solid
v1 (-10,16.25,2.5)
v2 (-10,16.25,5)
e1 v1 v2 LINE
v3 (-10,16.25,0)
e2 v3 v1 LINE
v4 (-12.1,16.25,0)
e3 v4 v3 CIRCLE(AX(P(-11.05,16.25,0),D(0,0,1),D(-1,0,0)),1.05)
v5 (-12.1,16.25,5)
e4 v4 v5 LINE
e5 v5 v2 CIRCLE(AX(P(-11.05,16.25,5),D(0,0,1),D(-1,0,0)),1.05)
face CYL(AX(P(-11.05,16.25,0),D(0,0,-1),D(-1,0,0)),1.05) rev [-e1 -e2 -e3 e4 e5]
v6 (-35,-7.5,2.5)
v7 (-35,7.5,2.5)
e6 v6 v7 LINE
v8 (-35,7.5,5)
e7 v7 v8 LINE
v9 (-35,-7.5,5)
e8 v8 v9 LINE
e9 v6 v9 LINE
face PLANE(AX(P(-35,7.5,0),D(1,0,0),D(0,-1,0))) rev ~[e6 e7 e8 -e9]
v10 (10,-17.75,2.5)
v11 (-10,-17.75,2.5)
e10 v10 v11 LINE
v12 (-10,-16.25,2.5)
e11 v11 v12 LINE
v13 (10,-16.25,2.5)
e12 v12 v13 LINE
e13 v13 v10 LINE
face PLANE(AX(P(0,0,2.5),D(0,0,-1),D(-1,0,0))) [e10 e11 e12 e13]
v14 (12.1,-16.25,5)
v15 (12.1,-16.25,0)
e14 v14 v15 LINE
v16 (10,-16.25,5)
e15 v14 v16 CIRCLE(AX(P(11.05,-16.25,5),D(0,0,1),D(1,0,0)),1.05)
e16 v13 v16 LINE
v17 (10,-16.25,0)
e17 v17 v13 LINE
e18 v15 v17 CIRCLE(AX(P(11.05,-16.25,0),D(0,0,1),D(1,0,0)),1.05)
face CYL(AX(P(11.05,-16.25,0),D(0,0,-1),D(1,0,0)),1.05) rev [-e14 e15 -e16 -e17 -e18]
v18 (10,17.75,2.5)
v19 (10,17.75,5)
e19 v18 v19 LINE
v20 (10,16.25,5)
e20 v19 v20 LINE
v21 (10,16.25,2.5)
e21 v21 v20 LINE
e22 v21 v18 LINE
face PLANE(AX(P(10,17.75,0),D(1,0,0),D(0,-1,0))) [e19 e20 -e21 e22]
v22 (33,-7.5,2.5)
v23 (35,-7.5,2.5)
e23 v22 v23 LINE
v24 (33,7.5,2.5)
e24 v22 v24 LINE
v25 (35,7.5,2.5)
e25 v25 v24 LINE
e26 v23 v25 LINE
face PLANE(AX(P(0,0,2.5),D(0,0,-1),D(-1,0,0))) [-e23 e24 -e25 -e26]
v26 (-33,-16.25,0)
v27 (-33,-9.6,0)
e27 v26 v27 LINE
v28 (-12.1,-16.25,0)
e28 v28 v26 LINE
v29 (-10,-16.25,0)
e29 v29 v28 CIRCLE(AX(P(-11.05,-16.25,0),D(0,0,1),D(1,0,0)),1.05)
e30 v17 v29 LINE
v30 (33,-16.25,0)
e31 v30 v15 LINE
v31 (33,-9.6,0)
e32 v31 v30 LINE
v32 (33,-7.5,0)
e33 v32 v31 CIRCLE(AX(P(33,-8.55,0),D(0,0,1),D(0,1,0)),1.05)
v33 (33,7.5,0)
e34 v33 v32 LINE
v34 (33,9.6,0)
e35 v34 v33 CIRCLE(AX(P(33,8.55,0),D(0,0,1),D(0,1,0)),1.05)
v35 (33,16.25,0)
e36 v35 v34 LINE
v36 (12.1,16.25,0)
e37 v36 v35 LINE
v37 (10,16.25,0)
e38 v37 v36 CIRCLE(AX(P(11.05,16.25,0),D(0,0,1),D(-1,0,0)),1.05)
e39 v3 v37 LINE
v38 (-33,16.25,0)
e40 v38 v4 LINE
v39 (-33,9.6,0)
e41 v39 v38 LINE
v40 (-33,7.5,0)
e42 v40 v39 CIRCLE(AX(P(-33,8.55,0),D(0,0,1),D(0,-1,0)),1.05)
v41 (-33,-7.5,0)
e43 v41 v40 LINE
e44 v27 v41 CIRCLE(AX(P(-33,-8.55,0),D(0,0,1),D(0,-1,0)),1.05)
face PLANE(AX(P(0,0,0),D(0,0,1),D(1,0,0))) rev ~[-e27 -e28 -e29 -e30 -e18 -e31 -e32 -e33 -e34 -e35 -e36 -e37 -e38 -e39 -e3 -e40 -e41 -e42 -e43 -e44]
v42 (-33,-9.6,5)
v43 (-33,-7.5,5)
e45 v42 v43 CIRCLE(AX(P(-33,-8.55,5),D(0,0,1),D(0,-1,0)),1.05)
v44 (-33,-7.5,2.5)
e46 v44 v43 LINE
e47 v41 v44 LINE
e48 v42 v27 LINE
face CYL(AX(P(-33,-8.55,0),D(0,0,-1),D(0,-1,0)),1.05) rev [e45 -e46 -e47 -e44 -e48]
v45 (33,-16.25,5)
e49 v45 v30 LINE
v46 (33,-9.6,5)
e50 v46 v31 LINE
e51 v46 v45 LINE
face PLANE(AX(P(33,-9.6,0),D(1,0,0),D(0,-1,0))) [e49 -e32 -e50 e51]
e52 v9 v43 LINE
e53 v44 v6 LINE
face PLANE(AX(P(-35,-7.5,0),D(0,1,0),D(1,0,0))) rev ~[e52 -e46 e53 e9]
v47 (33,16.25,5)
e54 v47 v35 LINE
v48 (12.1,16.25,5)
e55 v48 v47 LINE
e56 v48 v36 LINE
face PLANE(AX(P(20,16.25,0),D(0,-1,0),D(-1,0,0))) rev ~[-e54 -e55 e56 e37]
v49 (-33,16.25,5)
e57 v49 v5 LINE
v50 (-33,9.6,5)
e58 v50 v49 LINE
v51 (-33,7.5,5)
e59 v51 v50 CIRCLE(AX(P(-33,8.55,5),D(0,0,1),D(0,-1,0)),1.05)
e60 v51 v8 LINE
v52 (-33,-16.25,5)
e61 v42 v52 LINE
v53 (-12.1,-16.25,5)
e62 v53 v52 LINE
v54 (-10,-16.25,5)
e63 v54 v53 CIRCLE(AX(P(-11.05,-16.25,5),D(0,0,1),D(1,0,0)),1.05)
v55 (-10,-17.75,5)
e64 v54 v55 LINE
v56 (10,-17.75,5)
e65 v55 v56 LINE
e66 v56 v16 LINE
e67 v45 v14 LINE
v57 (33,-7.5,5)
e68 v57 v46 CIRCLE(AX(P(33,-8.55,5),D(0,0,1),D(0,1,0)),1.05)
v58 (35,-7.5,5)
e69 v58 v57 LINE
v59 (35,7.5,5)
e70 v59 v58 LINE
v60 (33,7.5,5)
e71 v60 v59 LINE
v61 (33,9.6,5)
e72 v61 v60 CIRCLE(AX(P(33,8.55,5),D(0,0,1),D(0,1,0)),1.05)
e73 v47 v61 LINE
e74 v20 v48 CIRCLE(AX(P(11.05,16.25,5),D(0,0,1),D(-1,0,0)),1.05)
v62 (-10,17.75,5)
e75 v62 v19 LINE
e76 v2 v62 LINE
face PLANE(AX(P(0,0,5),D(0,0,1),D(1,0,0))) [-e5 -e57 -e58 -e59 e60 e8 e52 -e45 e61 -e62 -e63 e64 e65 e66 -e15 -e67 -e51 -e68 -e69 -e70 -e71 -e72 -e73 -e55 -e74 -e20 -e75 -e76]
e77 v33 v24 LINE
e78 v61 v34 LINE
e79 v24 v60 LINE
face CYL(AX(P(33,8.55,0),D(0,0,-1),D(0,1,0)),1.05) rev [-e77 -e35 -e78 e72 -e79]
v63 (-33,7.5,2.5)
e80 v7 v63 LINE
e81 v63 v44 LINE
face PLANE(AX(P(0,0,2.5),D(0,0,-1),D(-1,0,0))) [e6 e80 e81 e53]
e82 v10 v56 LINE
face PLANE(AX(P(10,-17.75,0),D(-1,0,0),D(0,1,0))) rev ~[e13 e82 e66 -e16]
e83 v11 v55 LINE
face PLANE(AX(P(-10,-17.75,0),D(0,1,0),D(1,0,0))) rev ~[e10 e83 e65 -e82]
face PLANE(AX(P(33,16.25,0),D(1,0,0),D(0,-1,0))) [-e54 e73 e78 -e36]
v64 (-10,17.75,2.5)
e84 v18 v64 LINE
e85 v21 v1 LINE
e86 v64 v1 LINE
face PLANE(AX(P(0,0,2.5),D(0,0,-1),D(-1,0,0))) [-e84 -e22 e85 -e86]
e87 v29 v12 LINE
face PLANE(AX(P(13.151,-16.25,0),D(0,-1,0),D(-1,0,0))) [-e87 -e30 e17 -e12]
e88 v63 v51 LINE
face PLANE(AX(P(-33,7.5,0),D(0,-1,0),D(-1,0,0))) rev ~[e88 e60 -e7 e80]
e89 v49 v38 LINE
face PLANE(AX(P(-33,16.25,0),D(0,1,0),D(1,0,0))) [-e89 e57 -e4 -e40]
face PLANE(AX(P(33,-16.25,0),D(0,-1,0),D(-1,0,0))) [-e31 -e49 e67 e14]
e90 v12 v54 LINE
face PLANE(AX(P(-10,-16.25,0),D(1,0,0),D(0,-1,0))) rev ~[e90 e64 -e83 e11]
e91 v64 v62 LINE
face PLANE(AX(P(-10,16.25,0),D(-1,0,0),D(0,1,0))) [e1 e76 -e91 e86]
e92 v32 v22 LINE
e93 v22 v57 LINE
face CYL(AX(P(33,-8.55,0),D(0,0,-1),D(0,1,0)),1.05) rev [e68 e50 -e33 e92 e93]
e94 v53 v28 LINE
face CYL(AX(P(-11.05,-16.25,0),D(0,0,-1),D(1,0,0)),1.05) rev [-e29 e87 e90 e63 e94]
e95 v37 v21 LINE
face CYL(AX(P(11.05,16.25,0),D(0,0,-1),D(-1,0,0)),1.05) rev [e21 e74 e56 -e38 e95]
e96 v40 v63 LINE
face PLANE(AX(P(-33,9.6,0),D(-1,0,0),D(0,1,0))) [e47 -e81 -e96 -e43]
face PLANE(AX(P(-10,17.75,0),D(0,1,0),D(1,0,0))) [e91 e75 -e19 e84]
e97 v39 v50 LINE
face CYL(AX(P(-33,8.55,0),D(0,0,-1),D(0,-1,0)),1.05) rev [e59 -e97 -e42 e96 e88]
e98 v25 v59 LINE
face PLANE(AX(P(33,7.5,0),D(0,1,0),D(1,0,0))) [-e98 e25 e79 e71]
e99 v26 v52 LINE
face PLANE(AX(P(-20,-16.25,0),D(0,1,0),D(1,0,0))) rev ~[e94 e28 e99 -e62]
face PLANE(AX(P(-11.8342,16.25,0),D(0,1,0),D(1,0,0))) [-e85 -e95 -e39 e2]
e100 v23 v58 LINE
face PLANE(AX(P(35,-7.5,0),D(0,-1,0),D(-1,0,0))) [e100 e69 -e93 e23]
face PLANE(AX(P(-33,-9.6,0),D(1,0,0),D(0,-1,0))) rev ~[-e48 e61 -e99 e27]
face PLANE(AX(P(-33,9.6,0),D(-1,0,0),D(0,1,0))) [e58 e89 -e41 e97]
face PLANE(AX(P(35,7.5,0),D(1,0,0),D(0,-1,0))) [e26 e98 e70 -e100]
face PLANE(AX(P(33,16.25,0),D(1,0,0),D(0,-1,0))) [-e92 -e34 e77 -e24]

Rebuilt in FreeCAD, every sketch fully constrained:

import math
import FreeCAD as App
import Part
import Sketcher
from FreeCAD import Vector
Q = App.Units.Quantity

doc = App.newDocument("Part")
body = doc.addObject("PartDesign::Body", "Body")

# Sketch on XY plane
sketch1 = body.newObject("Sketcher::SketchObject", "Sketch")
sketch1.AttachmentSupport = (doc.getObject("XY_Plane"), [""])
sketch1.MapMode = "FlatFace"
sketch1.addGeometry(Part.LineSegment(Vector(-33, 16.2, 0), Vector(-33, 9.6, 0)), False)
sketch1.addGeometry(Part.ArcOfCircle(Part.Circle(Vector(-33, 8.6, 0), Vector(0, 0, 1), 1.1), math.radians(-90), math.radians(90)), False)
sketch1.addGeometry(Part.LineSegment(Vector(-33, 7.5, 0), Vector(-35, 7.5, 0)), False)
sketch1.addGeometry(Part.LineSegment(Vector(-35, 7.5, 0), Vector(-35, -7.5, 0)), False)
sketch1.addGeometry(Part.LineSegment(Vector(-35, -7.5, 0), Vector(-33, -7.5, 0)), False)
sketch1.addGeometry(Part.ArcOfCircle(Part.Circle(Vector(-33, -8.6, 0), Vector(0, 0, 1), 1), math.radians(-90), math.radians(90)), False)
sketch1.addGeometry(Part.LineSegment(Vector(-33, -9.6, 0), Vector(-33, -16.2, 0)), False)
sketch1.addGeometry(Part.LineSegment(Vector(-33, -16.2, 0), Vector(-12.1, -16.2, 0)), False)
sketch1.addGeometry(Part.ArcOfCircle(Part.Circle(Vector(-11.1, -16.2, 0), Vector(0, 0, 1), 1.1), math.radians(0), math.radians(180)), False)
sketch1.addGeometry(Part.LineSegment(Vector(-10, -16.2, 0), Vector(-10, -17.8, 0)), False)
sketch1.addGeometry(Part.LineSegment(Vector(-10, -17.8, 0), Vector(10, -17.8, 0)), False)
sketch1.addGeometry(Part.LineSegment(Vector(10, -17.8, 0), Vector(10, -16.2, 0)), False)
sketch1.addGeometry(Part.ArcOfCircle(Part.Circle(Vector(11.1, -16.2, 0), Vector(0, 0, 1), 1), math.radians(0), math.radians(180)), False)
sketch1.addGeometry(Part.LineSegment(Vector(12.1, -16.2, 0), Vector(33, -16.2, 0)), False)
sketch1.addGeometry(Part.LineSegment(Vector(33, -16.2, 0), Vector(33, -9.6, 0)), False)
sketch1.addGeometry(Part.ArcOfCircle(Part.Circle(Vector(33, -8.6, 0), Vector(0, 0, 1), 1.1), math.radians(90), math.radians(270)), False)
sketch1.addGeometry(Part.LineSegment(Vector(33, -7.5, 0), Vector(35, -7.5, 0)), False)
sketch1.addGeometry(Part.LineSegment(Vector(35, -7.5, 0), Vector(35, 7.5, 0)), False)
sketch1.addGeometry(Part.LineSegment(Vector(35, 7.5, 0), Vector(33, 7.5, 0)), False)
sketch1.addGeometry(Part.ArcOfCircle(Part.Circle(Vector(33, 8.6, 0), Vector(0, 0, 1), 1), math.radians(90), math.radians(270)), False)
sketch1.addGeometry(Part.LineSegment(Vector(33, 9.6, 0), Vector(33, 16.2, 0)), False)
sketch1.addGeometry(Part.LineSegment(Vector(33, 16.2, 0), Vector(12.1, 16.2, 0)), False)
sketch1.addGeometry(Part.ArcOfCircle(Part.Circle(Vector(11.1, 16.2, 0), Vector(0, 0, 1), 1.1), math.radians(180), math.radians(360)), False)
sketch1.addGeometry(Part.LineSegment(Vector(10, 16.2, 0), Vector(10, 17.8, 0)), False)
sketch1.addGeometry(Part.LineSegment(Vector(10, 17.8, 0), Vector(-10, 17.8, 0)), False)
sketch1.addGeometry(Part.LineSegment(Vector(-10, 17.8, 0), Vector(-10, 16.2, 0)), False)
sketch1.addGeometry(Part.ArcOfCircle(Part.Circle(Vector(-11.1, 16.2, 0), Vector(0, 0, 1), 1), math.radians(180), math.radians(360)), False)
sketch1.addGeometry(Part.LineSegment(Vector(-12.1, 16.2, 0), Vector(-33, 16.2, 0)), False)
sketch1.addConstraint(Sketcher.Constraint("Coincident", 0, 2, 1, 2))
sketch1.addConstraint(Sketcher.Constraint("Tangent", 1, 1, 2, 1))
sketch1.addConstraint(Sketcher.Constraint("Coincident", 2, 2, 3, 1))
sketch1.addConstraint(Sketcher.Constraint("Coincident", 3, 2, 4, 1))
sketch1.addConstraint(Sketcher.Constraint("Tangent", 4, 2, 5, 2))
sketch1.addConstraint(Sketcher.Constraint("Coincident", 5, 1, 6, 1))
sketch1.addConstraint(Sketcher.Constraint("Coincident", 6, 2, 7, 1))
sketch1.addConstraint(Sketcher.Constraint("Coincident", 7, 2, 8, 2))
sketch1.addConstraint(Sketcher.Constraint("Tangent", 8, 1, 9, 1))
sketch1.addConstraint(Sketcher.Constraint("Coincident", 9, 2, 10, 1))
sketch1.addConstraint(Sketcher.Constraint("Coincident", 10, 2, 11, 1))
sketch1.addConstraint(Sketcher.Constraint("Tangent", 11, 2, 12, 2))
sketch1.addConstraint(Sketcher.Constraint("Coincident", 12, 1, 13, 1))
sketch1.addConstraint(Sketcher.Constraint("Coincident", 13, 2, 14, 1))
sketch1.addConstraint(Sketcher.Constraint("Coincident", 14, 2, 15, 2))
sketch1.addConstraint(Sketcher.Constraint("Tangent", 15, 1, 16, 1))
sketch1.addConstraint(Sketcher.Constraint("Coincident", 16, 2, 17, 1))
sketch1.addConstraint(Sketcher.Constraint("Coincident", 17, 2, 18, 1))
sketch1.addConstraint(Sketcher.Constraint("Tangent", 18, 2, 19, 2))
sketch1.addConstraint(Sketcher.Constraint("Coincident", 19, 1, 20, 1))
sketch1.addConstraint(Sketcher.Constraint("Coincident", 20, 2, 21, 1))
sketch1.addConstraint(Sketcher.Constraint("Coincident", 21, 2, 22, 2))
sketch1.addConstraint(Sketcher.Constraint("Tangent", 22, 1, 23, 1))
sketch1.addConstraint(Sketcher.Constraint("Coincident", 23, 2, 24, 1))
sketch1.addConstraint(Sketcher.Constraint("Coincident", 24, 2, 25, 1))
sketch1.addConstraint(Sketcher.Constraint("Tangent", 25, 2, 26, 2))
sketch1.addConstraint(Sketcher.Constraint("Coincident", 26, 1, 27, 1))
sketch1.addConstraint(Sketcher.Constraint("Coincident", 27, 2, 0, 1))
sketch1.addConstraint(Sketcher.Constraint("Vertical", 0))
sketch1.addConstraint(Sketcher.Constraint("Horizontal", 2))
sketch1.addConstraint(Sketcher.Constraint("Vertical", 3))
sketch1.addConstraint(Sketcher.Constraint("Horizontal", 4))
sketch1.addConstraint(Sketcher.Constraint("Vertical", 6))
sketch1.addConstraint(Sketcher.Constraint("Horizontal", 7))
sketch1.addConstraint(Sketcher.Constraint("Vertical", 9))
sketch1.addConstraint(Sketcher.Constraint("Horizontal", 10))
sketch1.addConstraint(Sketcher.Constraint("Vertical", 11))
sketch1.addConstraint(Sketcher.Constraint("Horizontal", 13))
sketch1.addConstraint(Sketcher.Constraint("Vertical", 14))
sketch1.addConstraint(Sketcher.Constraint("Horizontal", 16))
sketch1.addConstraint(Sketcher.Constraint("Vertical", 17))
sketch1.addConstraint(Sketcher.Constraint("Horizontal", 18))
sketch1.addConstraint(Sketcher.Constraint("Vertical", 20))
sketch1.addConstraint(Sketcher.Constraint("Horizontal", 21))
sketch1.addConstraint(Sketcher.Constraint("Vertical", 23))
sketch1.addConstraint(Sketcher.Constraint("Horizontal", 24))
sketch1.addConstraint(Sketcher.Constraint("Vertical", 25))
sketch1.addConstraint(Sketcher.Constraint("Horizontal", 27))
sketch1.addConstraint(Sketcher.Constraint("Equal", 1, 5))
sketch1.addConstraint(Sketcher.Constraint("Equal", 5, 8))
sketch1.addConstraint(Sketcher.Constraint("Equal", 8, 12))
sketch1.addConstraint(Sketcher.Constraint("Equal", 12, 15))
sketch1.addConstraint(Sketcher.Constraint("Equal", 15, 19))
sketch1.addConstraint(Sketcher.Constraint("Equal", 19, 22))
sketch1.addConstraint(Sketcher.Constraint("Equal", 22, 26))
sketch1.addConstraint(Sketcher.Constraint("Symmetric", 1, 3, 15, 3, -1, 1))
sketch1.addConstraint(Sketcher.Constraint("Symmetric", 5, 3, 19, 3, -1, 1))
sketch1.addConstraint(Sketcher.Constraint("Symmetric", 8, 3, 22, 3, -1, 1))
sketch1.addConstraint(Sketcher.Constraint("Symmetric", 12, 3, 26, 3, -1, 1))
sketch1.addConstraint(Sketcher.Constraint("Symmetric", 6, 2, 20, 2, -1, 1))
sketch1.addConstraint(Sketcher.Constraint("Symmetric", 13, 2, 27, 2, -1, 1))
sketch1.addConstraint(Sketcher.Constraint("Symmetric", 8, 3, 12, 3, -2))
sketch1.addConstraint(Sketcher.Constraint("Symmetric", 5, 3, 15, 3, -2))
sketch1.addConstraint(Sketcher.Constraint("Symmetric", 6, 2, 13, 2, -2))
sketch1.addConstraint(Sketcher.Constraint("Horizontal", 12, 3, 6, 2))
sketch1.addConstraint(Sketcher.Constraint("Vertical", 5, 3, 0, 2))
sketch1.addConstraint(Sketcher.Constraint("Equal", 4, 16))
sketch1.addConstraint(Sketcher.Constraint("Equal", 11, 23))
sketch1.addConstraint(Sketcher.Constraint("DistanceX", 2, 2, 2, 1, Q("2 mm")))
sketch1.addConstraint(Sketcher.Constraint("DistanceX", 10, 1, 10, 2, Q("20 mm")))
sketch1.addConstraint(Sketcher.Constraint("Radius", 1, Q("1.05 mm")))
sketch1.addConstraint(Sketcher.Constraint("DistanceY", 9, 2, 9, 1, Q("1.5 mm")))
sketch1.addConstraint(Sketcher.Constraint("DistanceX", 5, 3, 15, 3, Q("66 mm")))
sketch1.addConstraint(Sketcher.Constraint("DistanceY", 12, 3, 22, 3, Q("32.5 mm")))
sketch1.addConstraint(Sketcher.Constraint("DistanceY", 3, 2, 3, 1, Q("15 mm")))
pad1 = body.newObject("PartDesign::Pad", "Pad")
pad1.Profile = sketch1
pad1.Length = 5

# Sketch on XY plane
sketch2 = body.newObject("Sketcher::SketchObject", "Sketch001")
sketch2.AttachmentSupport = (doc.getObject("XY_Plane"), [""])
sketch2.MapMode = "FlatFace"
sketch2.addGeometry(Part.LineSegment(Vector(-33, 21, 0), Vector(-33, -14, 0)), False)
sketch2.addGeometry(Part.LineSegment(Vector(-33, -14, 0), Vector(-39, -14, 0)), False)
sketch2.addGeometry(Part.LineSegment(Vector(-39, -14, 0), Vector(-39, 21, 0)), False)
sketch2.addGeometry(Part.LineSegment(Vector(-39, 21, 0), Vector(-33, 21, 0)), False)
sketch2.addGeometry(Part.LineSegment(Vector(-18, -16, 0), Vector(13, -16, 0)), False)
sketch2.addGeometry(Part.LineSegment(Vector(13, -16, 0), Vector(13, -22, 0)), False)
sketch2.addGeometry(Part.LineSegment(Vector(13, -22, 0), Vector(-18, -22, 0)), False)
sketch2.addGeometry(Part.LineSegment(Vector(-18, -22, 0), Vector(-18, -16, 0)), False)
sketch2.addGeometry(Part.LineSegment(Vector(33, -17, 0), Vector(33, 17, 0)), False)
sketch2.addGeometry(Part.LineSegment(Vector(33, 17, 0), Vector(41, 17, 0)), False)
sketch2.addGeometry(Part.LineSegment(Vector(41, 17, 0), Vector(41, -17, 0)), False)
sketch2.addGeometry(Part.LineSegment(Vector(41, -17, 0), Vector(33, -17, 0)), False)
sketch2.addGeometry(Part.LineSegment(Vector(17, 25, 0), Vector(17, 16, 0)), False)
sketch2.addGeometry(Part.LineSegment(Vector(17, 16, 0), Vector(-12, 16, 0)), False)
sketch2.addGeometry(Part.LineSegment(Vector(-12, 16, 0), Vector(-12, 25, 0)), False)
sketch2.addGeometry(Part.LineSegment(Vector(-12, 25, 0), Vector(17, 25, 0)), False)
sketch2.addConstraint(Sketcher.Constraint("Coincident", 0, 2, 1, 1))
sketch2.addConstraint(Sketcher.Constraint("Coincident", 1, 2, 2, 1))
sketch2.addConstraint(Sketcher.Constraint("Coincident", 2, 2, 3, 1))
sketch2.addConstraint(Sketcher.Constraint("Coincident", 3, 2, 0, 1))
sketch2.addConstraint(Sketcher.Constraint("Coincident", 4, 2, 5, 1))
sketch2.addConstraint(Sketcher.Constraint("Coincident", 5, 2, 6, 1))
sketch2.addConstraint(Sketcher.Constraint("Coincident", 6, 2, 7, 1))
sketch2.addConstraint(Sketcher.Constraint("Coincident", 7, 2, 4, 1))
sketch2.addConstraint(Sketcher.Constraint("Coincident", 8, 2, 9, 1))
sketch2.addConstraint(Sketcher.Constraint("Coincident", 9, 2, 10, 1))
sketch2.addConstraint(Sketcher.Constraint("Coincident", 10, 2, 11, 1))
sketch2.addConstraint(Sketcher.Constraint("Coincident", 11, 2, 8, 1))
sketch2.addConstraint(Sketcher.Constraint("Coincident", 12, 2, 13, 1))
sketch2.addConstraint(Sketcher.Constraint("Coincident", 13, 2, 14, 1))
sketch2.addConstraint(Sketcher.Constraint("Coincident", 14, 2, 15, 1))
sketch2.addConstraint(Sketcher.Constraint("Coincident", 15, 2, 12, 1))
sketch2.addConstraint(Sketcher.Constraint("Vertical", 0))
sketch2.addConstraint(Sketcher.Constraint("Horizontal", 1))
sketch2.addConstraint(Sketcher.Constraint("Vertical", 2))
sketch2.addConstraint(Sketcher.Constraint("Horizontal", 3))
sketch2.addConstraint(Sketcher.Constraint("Horizontal", 4))
sketch2.addConstraint(Sketcher.Constraint("Vertical", 5))
sketch2.addConstraint(Sketcher.Constraint("Horizontal", 6))
sketch2.addConstraint(Sketcher.Constraint("Vertical", 7))
sketch2.addConstraint(Sketcher.Constraint("Vertical", 8))
sketch2.addConstraint(Sketcher.Constraint("Horizontal", 9))
sketch2.addConstraint(Sketcher.Constraint("Vertical", 10))
sketch2.addConstraint(Sketcher.Constraint("Horizontal", 11))
sketch2.addConstraint(Sketcher.Constraint("Vertical", 12))
sketch2.addConstraint(Sketcher.Constraint("Horizontal", 13))
sketch2.addConstraint(Sketcher.Constraint("Vertical", 14))
sketch2.addConstraint(Sketcher.Constraint("Horizontal", 15))
sketch2.addConstraint(Sketcher.Constraint("DistanceX", 0, 2, -1, 1, Q("33 mm")))
sketch2.addConstraint(Sketcher.Constraint("DistanceX", -1, 1, 8, 2, Q("33 mm")))
sketch2.addConstraint(Sketcher.Constraint("DistanceY", 4, 2, 12, 2, Q("32.5 mm")))
sketch2.addConstraint(Sketcher.Constraint("DistanceX", 1, 2, 1, 1, Q("5.858 mm")))
sketch2.addConstraint(Sketcher.Constraint("DistanceY", 4, 2, -1, 1, Q("16.25 mm")))
sketch2.addConstraint(Sketcher.Constraint("DistanceX", 4, 1, 4, 2, Q("30.9305 mm")))
sketch2.addConstraint(Sketcher.Constraint("DistanceX", 9, 1, 9, 2, Q("8.1427 mm")))
sketch2.addConstraint(Sketcher.Constraint("DistanceX", 13, 2, 13, 1, Q("28.9713 mm")))
sketch2.addConstraint(Sketcher.Constraint("DistanceY", 0, 2, 0, 1, Q("34.7998 mm")))
sketch2.addConstraint(Sketcher.Constraint("DistanceY", 5, 2, 5, 1, Q("5.3357 mm")))
sketch2.addConstraint(Sketcher.Constraint("DistanceY", 8, 1, 8, 2, Q("34.0635 mm")))
sketch2.addConstraint(Sketcher.Constraint("DistanceY", 12, 2, 12, 1, Q("8.9348 mm")))
sketch2.addConstraint(Sketcher.Constraint("DistanceX", -1, 1, 4, 2, Q("13.151 mm")))
sketch2.addConstraint(Sketcher.Constraint("DistanceY", 10, 2, -1, 1, Q("16.751 mm")))
sketch2.addConstraint(Sketcher.Constraint("DistanceX", -1, 1, 12, 2, Q("17.137 mm")))
sketch2.addConstraint(Sketcher.Constraint("DistanceY", 8, 2, 3, 2, Q("3.868 mm")))
pocket1 = body.newObject("PartDesign::Pocket", "Pocket")
pocket1.Profile = sketch2
pocket1.Length = 2.5
pocket1.Reversed = True

doc.recompute()
